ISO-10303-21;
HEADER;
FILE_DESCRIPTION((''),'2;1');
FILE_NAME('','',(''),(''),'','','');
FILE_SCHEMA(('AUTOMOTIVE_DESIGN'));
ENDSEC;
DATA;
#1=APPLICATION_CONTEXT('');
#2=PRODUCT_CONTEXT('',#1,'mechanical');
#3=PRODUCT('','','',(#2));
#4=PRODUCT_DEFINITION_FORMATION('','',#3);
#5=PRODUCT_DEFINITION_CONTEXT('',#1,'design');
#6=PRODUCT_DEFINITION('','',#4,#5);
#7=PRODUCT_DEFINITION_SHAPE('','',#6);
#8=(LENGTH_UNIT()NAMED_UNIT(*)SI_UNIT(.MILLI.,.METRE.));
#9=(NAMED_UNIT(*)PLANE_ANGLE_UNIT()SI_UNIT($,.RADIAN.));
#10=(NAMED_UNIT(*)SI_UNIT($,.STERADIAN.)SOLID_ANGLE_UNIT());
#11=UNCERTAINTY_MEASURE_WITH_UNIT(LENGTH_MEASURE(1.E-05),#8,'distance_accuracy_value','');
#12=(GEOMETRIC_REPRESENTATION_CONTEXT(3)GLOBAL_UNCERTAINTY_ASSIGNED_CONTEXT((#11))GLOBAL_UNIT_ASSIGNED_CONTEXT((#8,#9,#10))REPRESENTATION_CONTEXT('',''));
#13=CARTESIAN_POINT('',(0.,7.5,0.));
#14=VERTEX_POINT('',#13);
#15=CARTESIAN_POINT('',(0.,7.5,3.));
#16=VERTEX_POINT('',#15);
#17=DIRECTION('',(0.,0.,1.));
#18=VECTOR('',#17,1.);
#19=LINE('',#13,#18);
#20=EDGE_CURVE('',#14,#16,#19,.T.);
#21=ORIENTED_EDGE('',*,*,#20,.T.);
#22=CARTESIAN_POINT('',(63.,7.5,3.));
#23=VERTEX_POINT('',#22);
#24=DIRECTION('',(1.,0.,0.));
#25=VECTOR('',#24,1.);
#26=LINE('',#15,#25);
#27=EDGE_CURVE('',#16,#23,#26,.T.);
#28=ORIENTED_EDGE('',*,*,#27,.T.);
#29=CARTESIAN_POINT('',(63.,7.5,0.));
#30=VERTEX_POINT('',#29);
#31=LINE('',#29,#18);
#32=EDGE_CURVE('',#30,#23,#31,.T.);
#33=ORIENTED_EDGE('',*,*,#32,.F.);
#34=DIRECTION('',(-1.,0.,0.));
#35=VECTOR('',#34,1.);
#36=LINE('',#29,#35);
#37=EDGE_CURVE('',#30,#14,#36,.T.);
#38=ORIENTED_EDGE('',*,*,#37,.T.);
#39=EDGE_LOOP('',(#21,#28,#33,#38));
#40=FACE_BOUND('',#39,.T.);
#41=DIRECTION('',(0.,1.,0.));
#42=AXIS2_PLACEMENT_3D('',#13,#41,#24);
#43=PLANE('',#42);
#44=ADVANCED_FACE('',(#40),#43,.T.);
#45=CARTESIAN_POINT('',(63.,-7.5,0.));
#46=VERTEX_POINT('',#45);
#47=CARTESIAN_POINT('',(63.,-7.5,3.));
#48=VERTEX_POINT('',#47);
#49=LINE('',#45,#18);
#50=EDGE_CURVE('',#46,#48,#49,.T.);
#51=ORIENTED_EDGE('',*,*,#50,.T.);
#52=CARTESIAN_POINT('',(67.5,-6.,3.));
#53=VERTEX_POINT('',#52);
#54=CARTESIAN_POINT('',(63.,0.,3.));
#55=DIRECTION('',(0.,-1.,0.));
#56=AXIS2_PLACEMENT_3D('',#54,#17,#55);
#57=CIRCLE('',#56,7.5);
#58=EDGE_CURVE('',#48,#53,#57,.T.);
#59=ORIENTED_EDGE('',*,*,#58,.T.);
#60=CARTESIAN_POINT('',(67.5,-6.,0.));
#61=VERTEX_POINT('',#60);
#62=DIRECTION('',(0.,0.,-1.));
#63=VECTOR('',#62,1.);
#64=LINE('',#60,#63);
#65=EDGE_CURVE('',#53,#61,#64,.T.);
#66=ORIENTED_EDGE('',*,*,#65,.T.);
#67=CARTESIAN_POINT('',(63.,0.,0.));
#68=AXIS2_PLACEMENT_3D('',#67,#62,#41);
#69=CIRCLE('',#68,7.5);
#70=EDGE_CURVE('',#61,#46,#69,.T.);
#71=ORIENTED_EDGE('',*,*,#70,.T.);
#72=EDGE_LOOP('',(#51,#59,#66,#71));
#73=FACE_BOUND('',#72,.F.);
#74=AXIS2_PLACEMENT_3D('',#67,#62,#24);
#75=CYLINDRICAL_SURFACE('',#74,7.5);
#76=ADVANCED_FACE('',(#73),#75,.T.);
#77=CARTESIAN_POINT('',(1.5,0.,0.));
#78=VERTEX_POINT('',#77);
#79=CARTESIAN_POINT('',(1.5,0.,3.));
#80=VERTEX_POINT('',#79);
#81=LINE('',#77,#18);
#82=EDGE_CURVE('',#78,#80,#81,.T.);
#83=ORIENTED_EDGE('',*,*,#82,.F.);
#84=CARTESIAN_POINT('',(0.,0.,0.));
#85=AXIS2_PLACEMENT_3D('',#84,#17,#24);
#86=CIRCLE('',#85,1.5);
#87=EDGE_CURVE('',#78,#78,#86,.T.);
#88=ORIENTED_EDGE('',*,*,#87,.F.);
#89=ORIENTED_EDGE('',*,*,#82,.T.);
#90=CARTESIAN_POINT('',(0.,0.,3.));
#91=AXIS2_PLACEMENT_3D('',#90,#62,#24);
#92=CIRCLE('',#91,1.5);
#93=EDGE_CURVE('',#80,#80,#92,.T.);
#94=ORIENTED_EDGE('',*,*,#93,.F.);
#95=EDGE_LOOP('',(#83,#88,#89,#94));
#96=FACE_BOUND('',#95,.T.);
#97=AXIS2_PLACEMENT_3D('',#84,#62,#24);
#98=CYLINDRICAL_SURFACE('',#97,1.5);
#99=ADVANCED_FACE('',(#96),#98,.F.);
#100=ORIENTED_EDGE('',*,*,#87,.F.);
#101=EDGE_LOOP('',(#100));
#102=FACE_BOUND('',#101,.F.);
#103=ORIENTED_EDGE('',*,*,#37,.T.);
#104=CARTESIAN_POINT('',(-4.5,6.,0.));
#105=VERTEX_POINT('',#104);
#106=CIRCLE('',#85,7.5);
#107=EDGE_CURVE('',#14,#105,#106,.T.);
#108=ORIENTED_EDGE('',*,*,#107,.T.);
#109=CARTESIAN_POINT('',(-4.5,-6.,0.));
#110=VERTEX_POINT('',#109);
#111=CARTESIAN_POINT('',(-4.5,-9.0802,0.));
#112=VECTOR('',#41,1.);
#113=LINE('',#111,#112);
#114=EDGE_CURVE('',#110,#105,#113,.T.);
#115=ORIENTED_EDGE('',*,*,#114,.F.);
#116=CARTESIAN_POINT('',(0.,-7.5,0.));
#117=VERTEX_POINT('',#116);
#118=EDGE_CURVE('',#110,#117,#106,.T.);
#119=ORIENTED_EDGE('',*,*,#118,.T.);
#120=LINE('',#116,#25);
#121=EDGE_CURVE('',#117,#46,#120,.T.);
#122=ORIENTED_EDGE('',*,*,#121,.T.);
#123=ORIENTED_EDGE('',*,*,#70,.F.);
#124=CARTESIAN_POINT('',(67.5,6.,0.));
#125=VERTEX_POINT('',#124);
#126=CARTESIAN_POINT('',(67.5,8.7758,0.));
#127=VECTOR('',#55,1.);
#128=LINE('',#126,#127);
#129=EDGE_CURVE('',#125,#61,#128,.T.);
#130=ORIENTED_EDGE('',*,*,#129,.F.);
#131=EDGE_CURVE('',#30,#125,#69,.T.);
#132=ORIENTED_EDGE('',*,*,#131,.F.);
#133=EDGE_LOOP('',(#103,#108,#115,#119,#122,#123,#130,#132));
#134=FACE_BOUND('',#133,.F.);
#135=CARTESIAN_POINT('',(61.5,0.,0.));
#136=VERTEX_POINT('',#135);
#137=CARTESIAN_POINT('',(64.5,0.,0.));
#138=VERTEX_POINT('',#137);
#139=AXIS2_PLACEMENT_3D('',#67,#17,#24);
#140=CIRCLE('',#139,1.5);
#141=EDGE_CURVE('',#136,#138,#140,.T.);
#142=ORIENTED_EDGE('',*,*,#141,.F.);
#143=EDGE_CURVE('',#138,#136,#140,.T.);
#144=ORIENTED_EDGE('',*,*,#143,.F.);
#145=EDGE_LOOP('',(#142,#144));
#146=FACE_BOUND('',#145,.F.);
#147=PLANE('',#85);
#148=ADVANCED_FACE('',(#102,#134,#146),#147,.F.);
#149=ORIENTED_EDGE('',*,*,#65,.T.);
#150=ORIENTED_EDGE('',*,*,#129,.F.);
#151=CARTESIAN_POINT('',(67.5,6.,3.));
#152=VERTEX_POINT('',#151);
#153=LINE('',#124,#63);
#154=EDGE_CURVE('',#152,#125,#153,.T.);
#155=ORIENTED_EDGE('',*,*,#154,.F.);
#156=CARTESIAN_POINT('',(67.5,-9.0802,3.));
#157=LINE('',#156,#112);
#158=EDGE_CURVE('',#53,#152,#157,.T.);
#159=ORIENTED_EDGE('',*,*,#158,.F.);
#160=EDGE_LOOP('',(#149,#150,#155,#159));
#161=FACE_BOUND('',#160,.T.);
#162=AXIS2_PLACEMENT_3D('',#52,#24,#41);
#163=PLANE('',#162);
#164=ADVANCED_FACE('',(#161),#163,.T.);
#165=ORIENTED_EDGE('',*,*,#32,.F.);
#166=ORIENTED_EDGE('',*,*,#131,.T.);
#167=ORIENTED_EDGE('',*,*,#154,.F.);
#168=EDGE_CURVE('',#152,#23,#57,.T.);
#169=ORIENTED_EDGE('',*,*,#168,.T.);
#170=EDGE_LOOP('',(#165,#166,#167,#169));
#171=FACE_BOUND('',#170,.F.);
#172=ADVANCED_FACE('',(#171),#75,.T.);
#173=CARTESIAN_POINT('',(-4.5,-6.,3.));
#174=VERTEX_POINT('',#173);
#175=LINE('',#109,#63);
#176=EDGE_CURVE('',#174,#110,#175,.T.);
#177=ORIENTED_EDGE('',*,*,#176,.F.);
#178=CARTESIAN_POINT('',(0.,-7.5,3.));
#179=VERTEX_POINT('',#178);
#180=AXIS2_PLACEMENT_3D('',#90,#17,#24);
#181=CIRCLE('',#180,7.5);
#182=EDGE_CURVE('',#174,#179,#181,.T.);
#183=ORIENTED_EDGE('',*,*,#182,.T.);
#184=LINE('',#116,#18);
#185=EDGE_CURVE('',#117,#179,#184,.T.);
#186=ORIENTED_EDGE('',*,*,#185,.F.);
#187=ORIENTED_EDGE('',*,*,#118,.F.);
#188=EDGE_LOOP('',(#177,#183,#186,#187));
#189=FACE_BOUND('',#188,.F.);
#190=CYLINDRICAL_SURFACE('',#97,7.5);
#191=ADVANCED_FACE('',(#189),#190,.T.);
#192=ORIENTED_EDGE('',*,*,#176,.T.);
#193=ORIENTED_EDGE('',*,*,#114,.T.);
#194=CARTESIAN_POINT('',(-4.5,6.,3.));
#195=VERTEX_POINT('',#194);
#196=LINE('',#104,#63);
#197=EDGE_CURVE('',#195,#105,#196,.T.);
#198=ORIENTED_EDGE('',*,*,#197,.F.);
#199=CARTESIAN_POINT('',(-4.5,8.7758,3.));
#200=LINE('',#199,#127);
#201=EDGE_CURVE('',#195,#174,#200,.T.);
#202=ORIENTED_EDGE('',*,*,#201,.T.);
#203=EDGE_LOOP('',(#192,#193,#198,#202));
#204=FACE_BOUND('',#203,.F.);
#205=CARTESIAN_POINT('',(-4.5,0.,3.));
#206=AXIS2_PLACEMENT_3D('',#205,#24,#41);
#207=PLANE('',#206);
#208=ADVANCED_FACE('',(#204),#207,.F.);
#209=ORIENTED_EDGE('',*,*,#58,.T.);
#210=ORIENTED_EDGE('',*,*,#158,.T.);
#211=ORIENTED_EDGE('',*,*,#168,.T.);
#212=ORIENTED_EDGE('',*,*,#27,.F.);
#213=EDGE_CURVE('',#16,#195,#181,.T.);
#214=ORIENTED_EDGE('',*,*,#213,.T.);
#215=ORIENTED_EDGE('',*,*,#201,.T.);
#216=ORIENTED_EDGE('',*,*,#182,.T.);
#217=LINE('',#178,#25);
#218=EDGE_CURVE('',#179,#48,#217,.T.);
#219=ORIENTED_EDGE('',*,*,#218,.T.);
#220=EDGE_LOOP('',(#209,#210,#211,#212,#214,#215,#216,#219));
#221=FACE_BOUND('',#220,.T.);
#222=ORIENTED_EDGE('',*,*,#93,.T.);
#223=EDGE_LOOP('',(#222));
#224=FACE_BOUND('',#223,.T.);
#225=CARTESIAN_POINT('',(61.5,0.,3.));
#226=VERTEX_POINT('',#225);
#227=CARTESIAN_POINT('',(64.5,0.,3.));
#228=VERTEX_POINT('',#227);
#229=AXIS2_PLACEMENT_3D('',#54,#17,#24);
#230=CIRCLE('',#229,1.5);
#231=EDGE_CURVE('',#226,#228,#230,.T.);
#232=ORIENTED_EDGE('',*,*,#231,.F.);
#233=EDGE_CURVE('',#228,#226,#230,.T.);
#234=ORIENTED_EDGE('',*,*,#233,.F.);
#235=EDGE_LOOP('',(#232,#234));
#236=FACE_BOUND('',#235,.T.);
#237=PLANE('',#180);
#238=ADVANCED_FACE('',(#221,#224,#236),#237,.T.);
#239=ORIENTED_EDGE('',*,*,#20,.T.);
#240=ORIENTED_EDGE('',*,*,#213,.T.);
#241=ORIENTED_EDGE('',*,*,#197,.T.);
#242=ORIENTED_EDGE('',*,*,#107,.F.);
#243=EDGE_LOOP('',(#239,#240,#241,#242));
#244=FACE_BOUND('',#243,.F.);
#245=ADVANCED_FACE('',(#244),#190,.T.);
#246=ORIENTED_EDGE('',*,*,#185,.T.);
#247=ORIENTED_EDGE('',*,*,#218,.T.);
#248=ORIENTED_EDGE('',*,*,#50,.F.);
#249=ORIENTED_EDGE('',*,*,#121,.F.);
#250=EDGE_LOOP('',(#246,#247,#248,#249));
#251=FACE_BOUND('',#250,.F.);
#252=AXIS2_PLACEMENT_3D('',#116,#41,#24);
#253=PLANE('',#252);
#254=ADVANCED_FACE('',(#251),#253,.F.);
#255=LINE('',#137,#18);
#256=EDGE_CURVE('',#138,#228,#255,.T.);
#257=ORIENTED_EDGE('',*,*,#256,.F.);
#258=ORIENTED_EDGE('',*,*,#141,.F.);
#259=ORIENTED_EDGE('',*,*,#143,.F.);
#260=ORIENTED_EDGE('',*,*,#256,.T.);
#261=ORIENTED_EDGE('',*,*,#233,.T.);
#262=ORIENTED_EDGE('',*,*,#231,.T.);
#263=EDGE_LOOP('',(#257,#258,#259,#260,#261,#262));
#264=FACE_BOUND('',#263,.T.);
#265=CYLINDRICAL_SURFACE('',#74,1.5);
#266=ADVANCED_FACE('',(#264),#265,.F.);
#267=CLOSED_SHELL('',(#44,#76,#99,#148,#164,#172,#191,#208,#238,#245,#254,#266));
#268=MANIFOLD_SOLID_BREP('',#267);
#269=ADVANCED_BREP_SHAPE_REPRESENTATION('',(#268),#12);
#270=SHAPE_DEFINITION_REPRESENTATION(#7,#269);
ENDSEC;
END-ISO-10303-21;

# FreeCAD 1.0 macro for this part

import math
import FreeCAD as App
import Part
import Sketcher
from FreeCAD import Vector
Q = App.Units.Quantity

doc = App.newDocument("Part")
body = doc.addObject("PartDesign::Body", "Body")

sketch1 = body.newObject("Sketcher::SketchObject", "Sketch")
sketch1.AttachmentSupport = (doc.getObject("XY_Plane"), [""])
sketch1.MapMode = "FlatFace"
sketch1.addGeometry(Part.ArcOfCircle(Part.Circle(Vector(0, 0, 0), Vector(0, 0, 1), 7.5), math.radians(90), math.radians(270)), False)
sketch1.addGeometry(Part.LineSegment(Vector(0, -7.5, 0), Vector(63, -7.5, 0)), False)
sketch1.addGeometry(Part.ArcOfCircle(Part.Circle(Vector(63, 0, 0), Vector(0, 0, 1), 7.5), math.radians(-90), math.radians(90)), False)
sketch1.addGeometry(Part.LineSegment(Vector(63, 7.5, 0), Vector(0, 7.5, 0)), False)
sketch1.addGeometry(Part.Circle(Vector(0, 0, 0), Vector(0, 0, 1), 1.5), False)
sketch1.addGeometry(Part.Circle(Vector(63, 0, 0), Vector(0, 0, 1), 1.5), False)
sketch1.addConstraint(Sketcher.Constraint("Tangent", 0, 2, 1, 1))
sketch1.addConstraint(Sketcher.Constraint("Tangent", 1, 2, 2, 1))
sketch1.addConstraint(Sketcher.Constraint("Tangent", 2, 2, 3, 1))
sketch1.addConstraint(Sketcher.Constraint("Tangent", 3, 2, 0, 1))
sketch1.addConstraint(Sketcher.Constraint("Horizontal", 1))
sketch1.addConstraint(Sketcher.Constraint("Horizontal", 3))
sketch1.addConstraint(Sketcher.Constraint("Coincident", 0, 3, -1, 1))
sketch1.addConstraint(Sketcher.Constraint("Coincident", 4, 3, -1, 1))
sketch1.addConstraint(Sketcher.Constraint("Coincident", 5, 3, 2, 3))
sketch1.addConstraint(Sketcher.Constraint("Equal", 4, 5))
sketch1.addConstraint(Sketcher.Constraint("Diameter", 4, Q("3 mm")))
sketch1.addConstraint(Sketcher.Constraint("Radius", 0, Q("7.5 mm")))
sketch1.addConstraint(Sketcher.Constraint("DistanceX", 1, 1, 1, 2, Q("63 mm")))
pad1 = body.newObject("PartDesign::Pad", "Pad")
pad1.Profile = sketch1
pad1.Length = 3

sketch2 = body.newObject("Sketcher::SketchObject", "Sketch001")
sketch2.AttachmentSupport = (doc.getObject("XY_Plane"), [""])
sketch2.MapMode = "FlatFace"
sketch2.AttachmentOffset = App.Placement(Vector(0, 0, 3), App.Rotation())
sketch2.addGeometry(Part.LineSegment(Vector(67.5, -9.1, 0), Vector(71.6, -9.1, 0)), False)
sketch2.addGeometry(Part.LineSegment(Vector(71.6, -9.1, 0), Vector(71.6, 8.8, 0)), False)
sketch2.addGeometry(Part.LineSegment(Vector(71.6, 8.8, 0), Vector(67.5, 8.8, 0)), False)
sketch2.addGeometry(Part.LineSegment(Vector(67.5, 8.8, 0), Vector(67.5, -9.1, 0)), False)
sketch2.addGeometry(Part.LineSegment(Vector(-4.5, 8.8, 0), Vector(-8.6, 8.8, 0)), False)
sketch2.addGeometry(Part.LineSegment(Vector(-8.6, 8.8, 0), Vector(-8.6, -9.1, 0)), False)
sketch2.addGeometry(Part.LineSegment(Vector(-8.6, -9.1, 0), Vector(-4.5, -9.1, 0)), False)
sketch2.addGeometry(Part.LineSegment(Vector(-4.5, -9.1, 0), Vector(-4.5, 8.8, 0)), False)
sketch2.addConstraint(Sketcher.Constraint("Coincident", 0, 2, 1, 1))
sketch2.addConstraint(Sketcher.Constraint("Coincident", 1, 2, 2, 1))
sketch2.addConstraint(Sketcher.Constraint("Coincident", 2, 2, 3, 1))
sketch2.addConstraint(Sketcher.Constraint("Coincident", 3, 2, 0, 1))
sketch2.addConstraint(Sketcher.Constraint("Coincident", 4, 2, 5, 1))
sketch2.addConstraint(Sketcher.Constraint("Coincident", 5, 2, 6, 1))
sketch2.addConstraint(Sketcher.Constraint("Coincident", 6, 2, 7, 1))
sketch2.addConstraint(Sketcher.Constraint("Coincident", 7, 2, 4, 1))
sketch2.addConstraint(Sketcher.Constraint("Horizontal", 0))
sketch2.addConstraint(Sketcher.Constraint("Vertical", 1))
sketch2.addConstraint(Sketcher.Constraint("Horizontal", 2))
sketch2.addConstraint(Sketcher.Constraint("Vertical", 3))
sketch2.addConstraint(Sketcher.Constraint("Horizontal", 4))
sketch2.addConstraint(Sketcher.Constraint("Vertical", 5))
sketch2.addConstraint(Sketcher.Constraint("Horizontal", 6))
sketch2.addConstraint(Sketcher.Constraint("Vertical", 7))
sketch2.addConstraint(Sketcher.Constraint("Horizontal", 2, 2, 4, 2))
sketch2.addConstraint(Sketcher.Constraint("Horizontal", 3, 2, 5, 2))
sketch2.addConstraint(Sketcher.Constraint("Equal", 2, 4))
sketch2.addConstraint(Sketcher.Constraint("DistanceX", 6, 2, 3, 2, Q("72 mm")))
sketch2.addConstraint(Sketcher.Constraint("DistanceX", -1, 1, 2, 2, Q("67.5 mm")))
sketch2.addConstraint(Sketcher.Constraint("DistanceX", 0, 1, 0, 2, Q("4.124 mm")))
sketch2.addConstraint(Sketcher.Constraint("DistanceY", 1, 1, 1, 2, Q("17.856 mm")))
sketch2.addConstraint(Sketcher.Constraint("DistanceY", 0, 2, -1, 1, Q("9.0802 mm")))
pocket1 = body.newObject("PartDesign::Pocket", "Pocket")
pocket1.Profile = sketch2
pocket1.Length = 3

doc.recompute()
